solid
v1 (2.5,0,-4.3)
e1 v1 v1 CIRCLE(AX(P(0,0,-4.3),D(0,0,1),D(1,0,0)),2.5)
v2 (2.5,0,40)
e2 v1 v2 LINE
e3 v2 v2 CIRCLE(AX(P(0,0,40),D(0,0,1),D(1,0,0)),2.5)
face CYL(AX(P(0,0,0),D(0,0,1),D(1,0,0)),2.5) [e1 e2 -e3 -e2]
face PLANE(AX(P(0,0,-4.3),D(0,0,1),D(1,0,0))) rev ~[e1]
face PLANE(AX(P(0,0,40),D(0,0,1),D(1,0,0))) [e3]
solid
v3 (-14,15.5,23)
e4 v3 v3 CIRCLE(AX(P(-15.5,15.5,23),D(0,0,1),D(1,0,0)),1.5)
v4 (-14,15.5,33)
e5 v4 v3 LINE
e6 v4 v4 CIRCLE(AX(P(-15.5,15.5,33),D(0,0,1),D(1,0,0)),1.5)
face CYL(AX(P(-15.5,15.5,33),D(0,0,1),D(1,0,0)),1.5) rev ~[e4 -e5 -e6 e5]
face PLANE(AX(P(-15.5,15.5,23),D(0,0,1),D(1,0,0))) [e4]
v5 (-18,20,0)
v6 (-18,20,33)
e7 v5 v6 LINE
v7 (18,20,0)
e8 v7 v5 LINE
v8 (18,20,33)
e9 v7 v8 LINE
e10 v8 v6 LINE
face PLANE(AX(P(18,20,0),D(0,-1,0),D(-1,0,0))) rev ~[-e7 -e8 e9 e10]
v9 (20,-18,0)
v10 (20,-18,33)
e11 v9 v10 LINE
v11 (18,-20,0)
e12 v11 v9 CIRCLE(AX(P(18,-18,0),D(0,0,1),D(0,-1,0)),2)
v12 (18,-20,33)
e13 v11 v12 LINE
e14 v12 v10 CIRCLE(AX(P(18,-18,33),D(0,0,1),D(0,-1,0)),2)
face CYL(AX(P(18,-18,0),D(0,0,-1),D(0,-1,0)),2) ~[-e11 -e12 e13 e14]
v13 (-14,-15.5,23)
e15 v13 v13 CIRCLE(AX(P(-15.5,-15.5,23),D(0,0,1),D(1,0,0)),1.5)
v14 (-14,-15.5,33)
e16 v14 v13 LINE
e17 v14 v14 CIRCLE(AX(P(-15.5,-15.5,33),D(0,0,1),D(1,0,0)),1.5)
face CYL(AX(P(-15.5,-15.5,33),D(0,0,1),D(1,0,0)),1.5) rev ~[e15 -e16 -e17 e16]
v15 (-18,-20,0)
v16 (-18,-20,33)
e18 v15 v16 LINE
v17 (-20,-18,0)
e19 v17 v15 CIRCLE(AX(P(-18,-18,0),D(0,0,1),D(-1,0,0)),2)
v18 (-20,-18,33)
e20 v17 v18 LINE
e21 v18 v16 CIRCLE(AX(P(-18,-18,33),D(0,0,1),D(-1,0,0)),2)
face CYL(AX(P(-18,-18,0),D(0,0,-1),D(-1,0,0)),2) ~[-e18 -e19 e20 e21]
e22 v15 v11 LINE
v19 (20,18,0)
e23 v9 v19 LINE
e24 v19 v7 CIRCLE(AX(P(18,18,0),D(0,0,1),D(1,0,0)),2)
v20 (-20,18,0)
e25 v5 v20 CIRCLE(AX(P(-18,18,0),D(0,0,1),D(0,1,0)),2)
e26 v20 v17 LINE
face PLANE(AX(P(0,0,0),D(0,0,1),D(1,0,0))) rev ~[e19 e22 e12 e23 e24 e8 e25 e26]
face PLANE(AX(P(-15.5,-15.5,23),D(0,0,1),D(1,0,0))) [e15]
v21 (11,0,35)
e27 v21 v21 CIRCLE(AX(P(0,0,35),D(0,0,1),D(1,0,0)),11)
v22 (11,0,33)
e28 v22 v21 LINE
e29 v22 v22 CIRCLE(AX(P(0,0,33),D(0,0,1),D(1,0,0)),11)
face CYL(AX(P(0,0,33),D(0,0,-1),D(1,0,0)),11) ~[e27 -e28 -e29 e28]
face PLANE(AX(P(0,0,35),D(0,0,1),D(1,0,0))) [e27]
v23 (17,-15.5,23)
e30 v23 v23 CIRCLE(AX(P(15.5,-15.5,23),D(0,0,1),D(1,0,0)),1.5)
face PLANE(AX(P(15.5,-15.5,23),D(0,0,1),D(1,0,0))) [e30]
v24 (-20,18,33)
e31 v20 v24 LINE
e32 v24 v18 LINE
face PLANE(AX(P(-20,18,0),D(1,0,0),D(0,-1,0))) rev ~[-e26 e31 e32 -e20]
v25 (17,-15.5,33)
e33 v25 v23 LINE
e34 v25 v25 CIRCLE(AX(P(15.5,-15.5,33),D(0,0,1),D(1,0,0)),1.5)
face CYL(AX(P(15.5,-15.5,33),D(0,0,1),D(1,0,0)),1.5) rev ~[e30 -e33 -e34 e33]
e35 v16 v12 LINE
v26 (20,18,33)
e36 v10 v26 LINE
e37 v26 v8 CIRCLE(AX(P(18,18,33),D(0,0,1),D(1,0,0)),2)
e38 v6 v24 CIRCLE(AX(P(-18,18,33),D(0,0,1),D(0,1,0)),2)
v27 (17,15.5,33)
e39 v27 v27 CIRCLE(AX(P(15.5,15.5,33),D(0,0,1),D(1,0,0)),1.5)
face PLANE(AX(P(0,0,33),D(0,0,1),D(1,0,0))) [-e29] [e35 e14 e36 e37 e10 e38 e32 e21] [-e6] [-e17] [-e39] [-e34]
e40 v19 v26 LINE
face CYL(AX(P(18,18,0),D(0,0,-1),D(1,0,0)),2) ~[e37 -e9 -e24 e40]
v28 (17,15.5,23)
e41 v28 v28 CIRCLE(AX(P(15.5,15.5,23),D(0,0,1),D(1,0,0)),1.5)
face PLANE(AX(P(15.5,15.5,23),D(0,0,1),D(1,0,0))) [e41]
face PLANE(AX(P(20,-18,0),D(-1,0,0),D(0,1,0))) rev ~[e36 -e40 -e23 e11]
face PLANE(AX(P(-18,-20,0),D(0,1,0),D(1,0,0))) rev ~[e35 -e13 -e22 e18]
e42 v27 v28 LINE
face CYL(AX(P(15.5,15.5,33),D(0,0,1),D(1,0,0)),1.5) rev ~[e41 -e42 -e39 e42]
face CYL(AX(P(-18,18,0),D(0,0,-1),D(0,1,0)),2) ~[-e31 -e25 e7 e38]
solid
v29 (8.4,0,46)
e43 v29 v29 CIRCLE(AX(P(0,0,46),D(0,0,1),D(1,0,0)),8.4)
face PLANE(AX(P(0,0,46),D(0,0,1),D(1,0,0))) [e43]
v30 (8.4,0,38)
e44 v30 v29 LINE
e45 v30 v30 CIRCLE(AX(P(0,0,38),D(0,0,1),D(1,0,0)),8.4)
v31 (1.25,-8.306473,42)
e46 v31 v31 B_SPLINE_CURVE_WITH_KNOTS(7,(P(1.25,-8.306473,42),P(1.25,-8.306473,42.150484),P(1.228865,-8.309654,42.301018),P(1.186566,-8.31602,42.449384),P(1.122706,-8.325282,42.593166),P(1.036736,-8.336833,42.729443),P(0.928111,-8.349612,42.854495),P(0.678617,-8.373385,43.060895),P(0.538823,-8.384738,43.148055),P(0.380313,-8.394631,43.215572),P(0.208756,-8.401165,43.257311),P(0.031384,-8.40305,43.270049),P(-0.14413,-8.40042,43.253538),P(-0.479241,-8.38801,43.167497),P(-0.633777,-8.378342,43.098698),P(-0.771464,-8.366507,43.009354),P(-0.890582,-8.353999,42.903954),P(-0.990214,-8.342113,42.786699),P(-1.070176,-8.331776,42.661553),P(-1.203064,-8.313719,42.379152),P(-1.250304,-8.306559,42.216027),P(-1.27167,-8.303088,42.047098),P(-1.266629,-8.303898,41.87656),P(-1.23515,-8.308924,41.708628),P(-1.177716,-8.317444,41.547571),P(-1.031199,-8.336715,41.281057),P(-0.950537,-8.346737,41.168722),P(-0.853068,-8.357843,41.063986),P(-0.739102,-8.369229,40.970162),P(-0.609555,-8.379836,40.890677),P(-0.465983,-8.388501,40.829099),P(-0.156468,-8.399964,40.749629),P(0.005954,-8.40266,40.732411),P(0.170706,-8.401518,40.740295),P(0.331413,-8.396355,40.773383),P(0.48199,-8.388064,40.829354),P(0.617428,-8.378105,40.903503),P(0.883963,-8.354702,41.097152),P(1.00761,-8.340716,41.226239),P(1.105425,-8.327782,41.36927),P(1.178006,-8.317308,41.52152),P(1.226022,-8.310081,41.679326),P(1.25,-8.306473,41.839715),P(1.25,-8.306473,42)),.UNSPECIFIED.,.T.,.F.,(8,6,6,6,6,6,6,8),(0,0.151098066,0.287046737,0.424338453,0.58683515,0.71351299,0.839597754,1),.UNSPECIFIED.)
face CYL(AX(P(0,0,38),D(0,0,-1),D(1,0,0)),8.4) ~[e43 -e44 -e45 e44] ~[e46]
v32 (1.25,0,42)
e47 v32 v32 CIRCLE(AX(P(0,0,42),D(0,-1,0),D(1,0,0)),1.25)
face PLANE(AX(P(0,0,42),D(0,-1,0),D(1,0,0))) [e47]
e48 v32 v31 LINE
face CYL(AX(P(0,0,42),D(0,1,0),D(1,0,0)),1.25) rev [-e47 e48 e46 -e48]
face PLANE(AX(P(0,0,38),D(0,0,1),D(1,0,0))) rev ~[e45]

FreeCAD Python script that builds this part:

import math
import FreeCAD as App
import Part
import Sketcher

doc = App.newDocument("Part")
params = doc.addObject("Spreadsheet::Sheet", "Params")
for row, (alias, value) in enumerate([
    ("sketch1_radius", "2 mm"),
    ("sketch1_width", "36 mm"),
    ("pad1_length", "33 mm"),
    ("sketch2_diameter", "22 mm"),
    ("pad2_length", "2 mm"),
    ("sketch3_diameter", "3 mm"),
    ("pocket1_length", "10 mm"),
    ("sketch4_diameter", "16.8 mm"),
    ("pad3_length", "8 mm"),
    ("sketch5_diameter", "2.5 mm"),
    ("pocket2_length", "25 mm"),
    ("sketch6_diameter", "5 mm"),
    ("pad4_length", "40 mm"),
    ("pad4_length2", "4.3 mm"),
], start=1):
    params.set(f"A{row}", alias)
    params.set(f"B{row}", "=" + value)
    params.setAlias(f"B{row}", alias)

body = doc.addObject("PartDesign::Body", "Body")

sketch1 = body.newObject("Sketcher::SketchObject", "Sketch")
sketch1.AttachmentSupport = (doc.getObject("XY_Plane"), [""])
sketch1.MapMode = "FlatFace"
sketch1.addGeometry([
    Part.ArcOfCircle(Part.Circle(App.Vector(18, 18, 0), App.Vector(0, 0, 1), 2), math.radians(0), math.radians(90)),
    Part.LineSegment(App.Vector(18, 20, 0), App.Vector(-18, 20, 0)),
    Part.ArcOfCircle(Part.Circle(App.Vector(-18, 18, 0), App.Vector(0, 0, 1), 2), math.radians(90), math.radians(180)),
    Part.LineSegment(App.Vector(-20, 18, 0), App.Vector(-20, -18, 0)),
    Part.ArcOfCircle(Part.Circle(App.Vector(-18, -18, 0), App.Vector(0, 0, 1), 2), math.radians(180), math.radians(270)),
    Part.LineSegment(App.Vector(-18, -20, 0), App.Vector(18, -20, 0)),
    Part.ArcOfCircle(Part.Circle(App.Vector(18, -18, 0), App.Vector(0, 0, 1), 2), math.radians(-90), math.radians(0)),
    Part.LineSegment(App.Vector(20, -18, 0), App.Vector(20, 18, 0)),
], False)
sketch1.addConstraint([
    Sketcher.Constraint("Tangent", 0, 2, 1, 1),
    Sketcher.Constraint("Tangent", 1, 2, 2, 1),
    Sketcher.Constraint("Tangent", 2, 2, 3, 1),
    Sketcher.Constraint("Tangent", 3, 2, 4, 1),
    Sketcher.Constraint("Tangent", 4, 2, 5, 1),
    Sketcher.Constraint("Tangent", 5, 2, 6, 1),
    Sketcher.Constraint("Tangent", 6, 2, 7, 1),
    Sketcher.Constraint("Tangent", 7, 2, 0, 1),
    Sketcher.Constraint("Horizontal", 1),
    Sketcher.Constraint("Vertical", 3),
    Sketcher.Constraint("Horizontal", 5),
    Sketcher.Constraint("Vertical", 7),
    Sketcher.Constraint("Equal", 0, 2),
    Sketcher.Constraint("Equal", 2, 4),
    Sketcher.Constraint("Equal", 4, 6),
    Sketcher.Constraint("Symmetric", 0, 3, 4, 3, -1, 1),
    Sketcher.Constraint("Equal", 5, 3),
    Sketcher.Constraint("Radius", 0, 2.0),
    Sketcher.Constraint("DistanceX", 1, 2, 1, 1, 36.0),
])
sketch1.setExpression("Constraints[17]", "Params.sketch1_radius")
sketch1.setExpression("Constraints[18]", "Params.sketch1_width")
pad1 = body.newObject("PartDesign::Pad", "Pad")
pad1.Profile = sketch1
pad1.setExpression("Length", "Params.pad1_length")

sketch2 = body.newObject("Sketcher::SketchObject", "Sketch001")
sketch2.AttachmentSupport = (doc.getObject("XY_Plane"), [""])
sketch2.MapMode = "FlatFace"
sketch2.AttachmentOffset = App.Placement(App.Vector(0, 0, 33), App.Rotation())
sketch2.addGeometry(Part.Circle(App.Vector(0, 0, 0), App.Vector(0, 0, 1), 11), False)
sketch2.addConstraint([
    Sketcher.Constraint("Coincident", 0, 3, -1, 1),
    Sketcher.Constraint("Diameter", 0, 22.0),
])
sketch2.setExpression("Constraints[1]", "Params.sketch2_diameter")
pad2 = body.newObject("PartDesign::Pad", "Pad001")
pad2.Profile = sketch2
pad2.setExpression("Length", "Params.pad2_length")

sketch3 = body.newObject("Sketcher::SketchObject", "Sketch002")
sketch3.AttachmentSupport = (doc.getObject("XY_Plane"), [""])
sketch3.MapMode = "FlatFace"
sketch3.AttachmentOffset = App.Placement(App.Vector(0, 0, 33), App.Rotation())
sketch3.addGeometry([
    Part.Circle(App.Vector(15.5, 15.5, 0), App.Vector(0, 0, 1), 1.5),
    Part.Circle(App.Vector(-15.5, 15.5, 0), App.Vector(0, 0, 1), 1.5),
    Part.Circle(App.Vector(-15.5, -15.5, 0), App.Vector(0, 0, 1), 1.5),
    Part.Circle(App.Vector(15.5, -15.5, 0), App.Vector(0, 0, 1), 1.5),
], False)
sketch3.addConstraint([
    Sketcher.Constraint("Equal", 0, 1),
    Sketcher.Constraint("Equal", 1, 2),
    Sketcher.Constraint("Equal", 2, 3),
    Sketcher.Constraint("Symmetric", 0, 3, 2, 3, -1, 1),
    Sketcher.Constraint("Symmetric", 1, 3, 3, 3, -1, 1),
    Sketcher.Constraint("Symmetric", 0, 3, 1, 3, -2),
    Sketcher.Constraint("Diameter", 0, 3.0),
    Sketcher.Constraint("DistanceX", 1, 3, 0, 3, 31.0),
    Sketcher.Constraint("DistanceY", 2, 3, 1, 3, 31.0),
])
sketch3.setExpression("Constraints[6]", "Params.sketch3_diameter")
pocket1 = body.newObject("PartDesign::Pocket", "Pocket")
pocket1.Profile = sketch3
pocket1.setExpression("Length", "Params.pocket1_length")
body2 = doc.addObject("PartDesign::Body", "Body001")

sketch4 = body2.newObject("Sketcher::SketchObject", "Sketch003")
sketch4.AttachmentSupport = (doc.getObject("XY_Plane001"), [""])
sketch4.MapMode = "FlatFace"
sketch4.AttachmentOffset = App.Placement(App.Vector(0, 0, 38), App.Rotation())
sketch4.addGeometry(Part.Circle(App.Vector(0, 0, 0), App.Vector(0, 0, 1), 8.4), False)
sketch4.addConstraint([
    Sketcher.Constraint("Coincident", 0, 3, -1, 1),
    Sketcher.Constraint("Diameter", 0, 16.8),
])
sketch4.setExpression("Constraints[1]", "Params.sketch4_diameter")
pad3 = body2.newObject("PartDesign::Pad", "Pad002")
pad3.Profile = sketch4
pad3.setExpression("Length", "Params.pad3_length")

sketch5 = body2.newObject("Sketcher::SketchObject", "Sketch004")
sketch5.AttachmentSupport = (doc.getObject("XZ_Plane001"), [""])
sketch5.MapMode = "FlatFace"
sketch5.addGeometry(Part.Circle(App.Vector(0, 42, 0), App.Vector(0, 0, 1), 1.25), False)
sketch5.addConstraint([
    Sketcher.Constraint("PointOnObject", 0, 3, -2),
    Sketcher.Constraint("Diameter", 0, 2.5),
    Sketcher.Constraint("DistanceY", -1, 1, 0, 3, 42.0),
])
sketch5.setExpression("Constraints[1]", "Params.sketch5_diameter")
pocket2 = body2.newObject("PartDesign::Pocket", "Pocket001")
pocket2.Profile = sketch5
pocket2.setExpression("Length", "Params.pocket2_length")
pocket2.Reversed = True
body3 = doc.addObject("PartDesign::Body", "Body002")

sketch6 = body3.newObject("Sketcher::SketchObject", "Sketch005")
sketch6.AttachmentSupport = (doc.getObject("XY_Plane002"), [""])
sketch6.MapMode = "FlatFace"
sketch6.addGeometry(Part.Circle(App.Vector(0, 0, 0), App.Vector(0, 0, 1), 2.5), False)
sketch6.addConstraint([
    Sketcher.Constraint("Coincident", 0, 3, -1, 1),
    Sketcher.Constraint("Diameter", 0, 5.0),
])
sketch6.setExpression("Constraints[1]", "Params.sketch6_diameter")
pad4 = body3.newObject("PartDesign::Pad", "Pad003")
pad4.Profile = sketch6
pad4.Type = "TwoLengths"
pad4.setExpression("Length", "Params.pad4_length")
pad4.setExpression("Length2", "Params.pad4_length2")

doc.recompute()
